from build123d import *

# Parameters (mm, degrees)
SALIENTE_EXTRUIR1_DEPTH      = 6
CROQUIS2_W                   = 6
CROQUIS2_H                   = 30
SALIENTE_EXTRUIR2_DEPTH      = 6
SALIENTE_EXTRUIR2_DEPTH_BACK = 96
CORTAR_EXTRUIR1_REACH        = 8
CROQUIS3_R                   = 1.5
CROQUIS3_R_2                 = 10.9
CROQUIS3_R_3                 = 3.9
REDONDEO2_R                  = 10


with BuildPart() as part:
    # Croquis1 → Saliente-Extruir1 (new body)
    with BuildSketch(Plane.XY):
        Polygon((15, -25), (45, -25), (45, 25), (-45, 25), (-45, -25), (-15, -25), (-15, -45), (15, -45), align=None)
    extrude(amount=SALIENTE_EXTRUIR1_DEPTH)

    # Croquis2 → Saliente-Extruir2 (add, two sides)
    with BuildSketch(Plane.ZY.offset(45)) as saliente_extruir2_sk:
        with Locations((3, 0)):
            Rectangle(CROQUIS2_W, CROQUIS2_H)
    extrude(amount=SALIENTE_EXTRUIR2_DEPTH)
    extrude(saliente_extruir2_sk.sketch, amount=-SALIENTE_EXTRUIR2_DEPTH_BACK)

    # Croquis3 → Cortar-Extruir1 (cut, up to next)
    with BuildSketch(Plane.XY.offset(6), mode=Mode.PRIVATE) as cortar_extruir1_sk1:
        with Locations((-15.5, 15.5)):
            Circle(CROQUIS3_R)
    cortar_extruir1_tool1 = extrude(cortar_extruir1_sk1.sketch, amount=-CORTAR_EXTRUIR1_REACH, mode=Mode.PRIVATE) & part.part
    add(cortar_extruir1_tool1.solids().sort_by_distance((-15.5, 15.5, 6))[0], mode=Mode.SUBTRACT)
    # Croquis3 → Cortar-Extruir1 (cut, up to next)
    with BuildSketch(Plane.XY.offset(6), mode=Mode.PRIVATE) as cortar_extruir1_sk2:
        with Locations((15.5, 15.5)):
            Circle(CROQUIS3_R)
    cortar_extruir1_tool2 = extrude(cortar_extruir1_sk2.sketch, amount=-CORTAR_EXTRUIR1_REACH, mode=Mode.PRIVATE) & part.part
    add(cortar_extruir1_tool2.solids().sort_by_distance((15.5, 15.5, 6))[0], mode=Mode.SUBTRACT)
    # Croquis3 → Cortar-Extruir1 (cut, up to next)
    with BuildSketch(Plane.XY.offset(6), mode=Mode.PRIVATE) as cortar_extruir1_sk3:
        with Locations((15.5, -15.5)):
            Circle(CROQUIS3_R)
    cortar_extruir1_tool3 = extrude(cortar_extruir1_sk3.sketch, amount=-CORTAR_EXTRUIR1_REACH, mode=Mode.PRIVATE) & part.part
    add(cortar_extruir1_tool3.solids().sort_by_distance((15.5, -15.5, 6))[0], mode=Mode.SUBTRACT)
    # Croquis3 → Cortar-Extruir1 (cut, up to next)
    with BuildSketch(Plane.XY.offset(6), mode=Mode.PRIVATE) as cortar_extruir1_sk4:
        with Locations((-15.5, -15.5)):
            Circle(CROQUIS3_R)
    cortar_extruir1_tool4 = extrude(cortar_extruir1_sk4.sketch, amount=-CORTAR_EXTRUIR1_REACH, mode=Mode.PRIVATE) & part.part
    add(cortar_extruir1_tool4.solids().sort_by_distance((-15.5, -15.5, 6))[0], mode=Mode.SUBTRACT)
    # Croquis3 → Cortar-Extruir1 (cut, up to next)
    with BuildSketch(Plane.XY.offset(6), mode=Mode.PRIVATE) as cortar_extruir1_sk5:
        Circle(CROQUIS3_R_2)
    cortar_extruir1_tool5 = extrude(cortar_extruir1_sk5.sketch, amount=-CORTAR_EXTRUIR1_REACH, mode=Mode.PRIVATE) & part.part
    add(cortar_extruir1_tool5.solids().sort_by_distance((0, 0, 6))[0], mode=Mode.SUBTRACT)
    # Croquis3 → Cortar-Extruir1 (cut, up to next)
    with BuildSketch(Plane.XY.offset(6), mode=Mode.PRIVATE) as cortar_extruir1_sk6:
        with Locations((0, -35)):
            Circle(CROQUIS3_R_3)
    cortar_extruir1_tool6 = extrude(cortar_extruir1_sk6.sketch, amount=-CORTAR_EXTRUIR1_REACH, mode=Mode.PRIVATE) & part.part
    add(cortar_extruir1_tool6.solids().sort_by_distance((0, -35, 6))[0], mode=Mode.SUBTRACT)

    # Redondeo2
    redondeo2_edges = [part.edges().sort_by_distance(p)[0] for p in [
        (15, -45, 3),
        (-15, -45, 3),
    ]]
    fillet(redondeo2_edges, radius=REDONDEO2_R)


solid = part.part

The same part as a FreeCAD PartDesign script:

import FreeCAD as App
import Part
import Sketcher
from FreeCAD import Vector
Q = App.Units.Quantity


def edges_at(feature, points):
    """Names of the edges that pass closest to the given points."""
    edges = feature.Shape.Edges
    near = lambda p: min(range(len(edges)), key=lambda i: edges[i].distToShape(Part.Vertex(*p))[0])
    return sorted({f"Edge{near(p) + 1}" for p in points})

doc = App.newDocument("Part")
params = doc.addObject("Spreadsheet::Sheet", "Params")
for row, (alias, value) in enumerate([
    ("sketch1_width", "30 mm"),
    ("sketch1_height", "50 mm"),
    ("sketch1_height2", "20 mm"),
    ("pad1_length", "6 mm"),
    ("sketch2_width", "30 mm"),
    ("sketch2_height", "6 mm"),
    ("pad2_length", "6 mm"),
    ("pad2_length2", "96 mm"),
    ("sketch3_diameter", "3 mm"),
    ("sketch4_diameter", "3 mm"),
    ("sketch5_diameter", "3 mm"),
    ("sketch6_diameter", "3 mm"),
    ("sketch7_diameter", "21.8 mm"),
    ("sketch8_diameter", "7.8 mm"),
    ("fillet_radius", "10 mm"),
], start=1):
    params.set(f"A{row}", alias)
    params.set(f"B{row}", "=" + value)
    params.setAlias(f"B{row}", alias)

body = doc.addObject("PartDesign::Body", "Body")

# Sketch on XY plane
sketch1 = body.newObject("Sketcher::SketchObject", "Sketch")
sketch1.AttachmentSupport = (doc.getObject("XY_Plane"), [""])
sketch1.MapMode = "FlatFace"
sketch1.addGeometry([
    Part.LineSegment(Vector(15, -25, 0), Vector(45, -25, 0)),  # 0
    Part.LineSegment(Vector(45, -25, 0), Vector(45, 25, 0)),  # 1
    Part.LineSegment(Vector(45, 25, 0), Vector(-45, 25, 0)),  # 2
    Part.LineSegment(Vector(-45, 25, 0), Vector(-45, -25, 0)),  # 3
    Part.LineSegment(Vector(-45, -25, 0), Vector(-15, -25, 0)),  # 4
    Part.LineSegment(Vector(-15, -25, 0), Vector(-15, -45, 0)),  # 5
    Part.LineSegment(Vector(-15, -45, 0), Vector(15, -45, 0)),  # 6
    Part.LineSegment(Vector(15, -45, 0), Vector(15, -25, 0)),  # 7
], False)
sketch1.addConstraint([
    Sketcher.Constraint("Coincident", 0, 2, 1, 1),
    Sketcher.Constraint("Coincident", 1, 2, 2, 1),
    Sketcher.Constraint("Coincident", 2, 2, 3, 1),
    Sketcher.Constraint("Coincident", 3, 2, 4, 1),
    Sketcher.Constraint("Coincident", 4, 2, 5, 1),
    Sketcher.Constraint("Coincident", 5, 2, 6, 1),
    Sketcher.Constraint("Coincident", 6, 2, 7, 1),
    Sketcher.Constraint("Coincident", 7, 2, 0, 1),
    Sketcher.Constraint("Horizontal", 0),
    Sketcher.Constraint("Vertical", 1),
    Sketcher.Constraint("Horizontal", 2),
    Sketcher.Constraint("Vertical", 3),
    Sketcher.Constraint("Horizontal", 4),
    Sketcher.Constraint("Vertical", 5),
    Sketcher.Constraint("Horizontal", 6),
    Sketcher.Constraint("Vertical", 7),
    Sketcher.Constraint("Symmetric", 0, 2, 2, 2, -1, 1),
    Sketcher.Constraint("Symmetric", 4, 2, 7, 2, -2),
    Sketcher.Constraint("Equal", 4, 6),
    Sketcher.Constraint("DistanceX", 0, 1, 0, 2, Q("30 mm")),
    Sketcher.Constraint("DistanceY", 1, 1, 1, 2, Q("50 mm")),
    Sketcher.Constraint("DistanceY", 5, 2, 5, 1, Q("20 mm")),
])
sketch1.setExpression("Constraints[19]", "Params.sketch1_width")
sketch1.setExpression("Constraints[20]", "Params.sketch1_height")
sketch1.setExpression("Constraints[21]", "Params.sketch1_height2")
pad1 = body.newObject("PartDesign::Pad", "Pad")
pad1.Profile = sketch1
pad1.setExpression("Length", "Params.pad1_length")

# Sketch on YZ plane
sketch2 = body.newObject("Sketcher::SketchObject", "Sketch001")
sketch2.AttachmentSupport = (doc.getObject("YZ_Plane"), [""])
sketch2.MapMode = "FlatFace"
sketch2.AttachmentOffset = App.Placement(Vector(0, 0, -45), App.Rotation())
sketch2.addGeometry([
    Part.LineSegment(Vector(15, 0, 0), Vector(-15, 0, 0)),
    Part.LineSegment(Vector(-15, 0, 0), Vector(-15, 6, 0)),
    Part.LineSegment(Vector(-15, 6, 0), Vector(15, 6, 0)),
    Part.LineSegment(Vector(15, 6, 0), Vector(15, 0, 0)),
], False)
sketch2.addConstraint([
    Sketcher.Constraint("Coincident", 0, 2, 1, 1),
    Sketcher.Constraint("Coincident", 1, 2, 2, 1),
    Sketcher.Constraint("Coincident", 2, 2, 3, 1),
    Sketcher.Constraint("Coincident", 3, 2, 0, 1),
    Sketcher.Constraint("Horizontal", 0),
    Sketcher.Constraint("Vertical", 1),
    Sketcher.Constraint("Horizontal", 2),
    Sketcher.Constraint("Vertical", 3),
    Sketcher.Constraint("Symmetric", 0, 2, 3, 2, -1, 1),
    Sketcher.Constraint("DistanceX", 0, 2, 0, 1, Q("30 mm")),
    Sketcher.Constraint("DistanceY", 1, 1, 1, 2, Q("6 mm")),
])
sketch2.setExpression("Constraints[9]", "Params.sketch2_width")
sketch2.setExpression("Constraints[10]", "Params.sketch2_height")
pad2 = body.newObject("PartDesign::Pad", "Pad001")
pad2.Profile = sketch2
pad2.Type = "TwoLengths"
pad2.setExpression("Length", "Params.pad2_length")
pad2.setExpression("Length2", "Params.pad2_length2")
pad2.Reversed = True

# Sketch on XY plane
sketch3 = body.newObject("Sketcher::SketchObject", "Sketch002")
sketch3.AttachmentSupport = (doc.getObject("XY_Plane"), [""])
sketch3.MapMode = "FlatFace"
sketch3.AttachmentOffset = App.Placement(Vector(0, 0, 6), App.Rotation())
sketch3.addGeometry(Part.Circle(Vector(-15.5, 15.5, 0), Vector(0, 0, 1), 1.5), False)
sketch3.addConstraint([
    Sketcher.Constraint("Diameter", 0, Q("3 mm")),
    Sketcher.Constraint("DistanceX", 0, 3, -1, 1, Q("15.5 mm")),
    Sketcher.Constraint("DistanceY", -1, 1, 0, 3, Q("15.5 mm")),
])
sketch3.setExpression("Constraints[0]", "Params.sketch3_diameter")
pocket1 = body.newObject("PartDesign::Pocket", "Pocket")
pocket1.Profile = sketch3
pocket1.Type = "UpToFirst"

# Sketch on XY plane
sketch4 = body.newObject("Sketcher::SketchObject", "Sketch003")
sketch4.AttachmentSupport = (doc.getObject("XY_Plane"), [""])
sketch4.MapMode = "FlatFace"
sketch4.AttachmentOffset = App.Placement(Vector(0, 0, 6), App.Rotation())
sketch4.addGeometry(Part.Circle(Vector(15.5, 15.5, 0), Vector(0, 0, 1), 1.5), False)
sketch4.addConstraint([
    Sketcher.Constraint("Diameter", 0, Q("3 mm")),
    Sketcher.Constraint("DistanceX", -1, 1, 0, 3, Q("15.5 mm")),
    Sketcher.Constraint("DistanceY", -1, 1, 0, 3, Q("15.5 mm")),
])
sketch4.setExpression("Constraints[0]", "Params.sketch4_diameter")
pocket2 = body.newObject("PartDesign::Pocket", "Pocket001")
pocket2.Profile = sketch4
pocket2.Type = "UpToFirst"

# Sketch on XY plane
sketch5 = body.newObject("Sketcher::SketchObject", "Sketch004")
sketch5.AttachmentSupport = (doc.getObject("XY_Plane"), [""])
sketch5.MapMode = "FlatFace"
sketch5.AttachmentOffset = App.Placement(Vector(0, 0, 6), App.Rotation())
sketch5.addGeometry(Part.Circle(Vector(15.5, -15.5, 0), Vector(0, 0, 1), 1.5), False)
sketch5.addConstraint([
    Sketcher.Constraint("Diameter", 0, Q("3 mm")),
    Sketcher.Constraint("DistanceX", -1, 1, 0, 3, Q("15.5 mm")),
    Sketcher.Constraint("DistanceY", 0, 3, -1, 1, Q("15.5 mm")),
])
sketch5.setExpression("Constraints[0]", "Params.sketch5_diameter")
pocket3 = body.newObject("PartDesign::Pocket", "Pocket002")
pocket3.Profile = sketch5
pocket3.Type = "UpToFirst"

# Sketch on XY plane
sketch6 = body.newObject("Sketcher::SketchObject", "Sketch005")
sketch6.AttachmentSupport = (doc.getObject("XY_Plane"), [""])
sketch6.MapMode = "FlatFace"
sketch6.AttachmentOffset = App.Placement(Vector(0, 0, 6), App.Rotation())
sketch6.addGeometry(Part.Circle(Vector(-15.5, -15.5, 0), Vector(0, 0, 1), 1.5), False)
sketch6.addConstraint([
    Sketcher.Constraint("Diameter", 0, Q("3 mm")),
    Sketcher.Constraint("DistanceX", 0, 3, -1, 1, Q("15.5 mm")),
    Sketcher.Constraint("DistanceY", 0, 3, -1, 1, Q("15.5 mm")),
])
sketch6.setExpression("Constraints[0]", "Params.sketch6_diameter")
pocket4 = body.newObject("PartDesign::Pocket", "Pocket003")
pocket4.Profile = sketch6
pocket4.Type = "UpToFirst"

# Sketch on XY plane
sketch7 = body.newObject("Sketcher::SketchObject", "Sketch006")
sketch7.AttachmentSupport = (doc.getObject("XY_Plane"), [""])
sketch7.MapMode = "FlatFace"
sketch7.AttachmentOffset = App.Placement(Vector(0, 0, 6), App.Rotation())
sketch7.addGeometry(Part.Circle(Vector(0, 0, 0), Vector(0, 0, 1), 10.9), False)
sketch7.addConstraint([
    Sketcher.Constraint("Coincident", 0, 3, -1, 1),
    Sketcher.Constraint("Diameter", 0, Q("21.8 mm")),
])
sketch7.setExpression("Constraints[1]", "Params.sketch7_diameter")
pocket5 = body.newObject("PartDesign::Pocket", "Pocket004")
pocket5.Profile = sketch7
pocket5.Type = "UpToFirst"

# Sketch on XY plane
sketch8 = body.newObject("Sketcher::SketchObject", "Sketch007")
sketch8.AttachmentSupport = (doc.getObject("XY_Plane"), [""])
sketch8.MapMode = "FlatFace"
sketch8.AttachmentOffset = App.Placement(Vector(0, 0, 6), App.Rotation())
sketch8.addGeometry(Part.Circle(Vector(0, -35, 0), Vector(0, 0, 1), 3.9), False)
sketch8.addConstraint([
    Sketcher.Constraint("PointOnObject", 0, 3, -2),
    Sketcher.Constraint("Diameter", 0, Q("7.8 mm")),
    Sketcher.Constraint("DistanceY", 0, 3, -1, 1, Q("35 mm")),
])
sketch8.setExpression("Constraints[1]", "Params.sketch8_diameter")
pocket6 = body.newObject("PartDesign::Pocket", "Pocket005")
pocket6.Profile = sketch8
pocket6.Type = "UpToFirst"
doc.recompute()

fillet = body.newObject("PartDesign::Fillet", "Fillet")
fillet.Base = (pocket6, edges_at(pocket6, [(15, -45, 3), (-15, -45, 3)]))
fillet.setExpression("Radius", "Params.fillet_radius")

doc.recompute()
